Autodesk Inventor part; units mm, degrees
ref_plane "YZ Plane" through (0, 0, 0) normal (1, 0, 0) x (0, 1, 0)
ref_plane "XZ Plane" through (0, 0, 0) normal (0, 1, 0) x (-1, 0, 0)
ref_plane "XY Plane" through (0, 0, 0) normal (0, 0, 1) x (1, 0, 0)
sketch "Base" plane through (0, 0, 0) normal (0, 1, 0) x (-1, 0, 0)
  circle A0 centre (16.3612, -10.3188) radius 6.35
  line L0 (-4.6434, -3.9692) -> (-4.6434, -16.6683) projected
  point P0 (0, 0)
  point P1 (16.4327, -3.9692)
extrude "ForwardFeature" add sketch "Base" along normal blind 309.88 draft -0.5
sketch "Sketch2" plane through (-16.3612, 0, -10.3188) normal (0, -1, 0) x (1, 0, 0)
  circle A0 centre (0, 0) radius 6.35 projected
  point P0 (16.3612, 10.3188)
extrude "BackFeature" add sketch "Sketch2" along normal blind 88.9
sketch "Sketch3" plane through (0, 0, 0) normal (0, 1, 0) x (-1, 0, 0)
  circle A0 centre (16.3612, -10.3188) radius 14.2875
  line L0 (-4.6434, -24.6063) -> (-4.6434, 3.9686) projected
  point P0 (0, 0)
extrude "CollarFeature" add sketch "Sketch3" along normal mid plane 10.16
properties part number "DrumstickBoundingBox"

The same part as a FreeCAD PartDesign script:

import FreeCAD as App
import Part
import Sketcher
Q = App.Units.Quantity

doc = App.newDocument("Part")
body = doc.addObject("PartDesign::Body", "Body")

# Sketch on XZ plane
sketch1 = doc.addObject("Sketcher::SketchObject", "Sketch")
body.addObject(sketch1)
sketch1.AttachmentSupport = (doc.XZ_Plane, [""])
sketch1.MapMode = "FlatFace"
sketch1.addGeometry(Part.Circle(App.Vector(-16, -10, 0), App.Vector(0, 0, 1), 6), False)
sketch1.addConstraint([
    Sketcher.Constraint("Diameter", 0, Q("0.5 in")),
    Sketcher.Constraint("DistanceY", 0, 3, -1, 1, Q("0.406252 in")),
    Sketcher.Constraint("DistanceX", 0, 3, -1, 1, Q("16.3612 mm")),
])
pad1 = doc.addObject("PartDesign::Pad", "Pad")
body.addObject(pad1)
pad1.Profile = sketch1
pad1.Length = Q("12.2 in")
pad1.Reversed = True
pad1.TaperAngle = -0.5

# Sketch on XZ plane
sketch2 = doc.addObject("Sketcher::SketchObject", "Sketch001")
body.addObject(sketch2)
sketch2.AttachmentSupport = (doc.XZ_Plane, [""])
sketch2.MapMode = "FlatFace"
sketch2.addGeometry(Part.Circle(App.Vector(-16, -10, 0), App.Vector(0, 0, 1), 6), False)
sketch2.addConstraint([
    Sketcher.Constraint("Diameter", 0, Q("0.5 in")),
    Sketcher.Constraint("DistanceY", 0, 3, -1, 1, Q("0.406252 in")),
    Sketcher.Constraint("DistanceX", 0, 3, -1, 1, Q("16.3612 mm")),
])
pad2 = doc.addObject("PartDesign::Pad", "Pad001")
body.addObject(pad2)
pad2.Profile = sketch2
pad2.Length = Q("3.5 in")

# Sketch on XZ plane
sketch3 = doc.addObject("Sketcher::SketchObject", "Sketch002")
body.addObject(sketch3)
sketch3.AttachmentSupport = (doc.XZ_Plane, [""])
sketch3.MapMode = "FlatFace"
sketch3.addGeometry(Part.Circle(App.Vector(-16, -10, 0), App.Vector(0, 0, 1), 14), False)
sketch3.addConstraint([
    Sketcher.Constraint("Diameter", 0, Q("1.125 in")),
    Sketcher.Constraint("DistanceY", 0, 3, -1, 1, Q("0.406252 in")),
    Sketcher.Constraint("DistanceX", 0, 3, -1, 1, Q("16.3612 mm")),
])
pad3 = doc.addObject("PartDesign::Pad", "Pad002")
body.addObject(pad3)
pad3.Profile = sketch3
pad3.Length = Q("0.4 in")
pad3.Midplane = True

doc.recompute()
